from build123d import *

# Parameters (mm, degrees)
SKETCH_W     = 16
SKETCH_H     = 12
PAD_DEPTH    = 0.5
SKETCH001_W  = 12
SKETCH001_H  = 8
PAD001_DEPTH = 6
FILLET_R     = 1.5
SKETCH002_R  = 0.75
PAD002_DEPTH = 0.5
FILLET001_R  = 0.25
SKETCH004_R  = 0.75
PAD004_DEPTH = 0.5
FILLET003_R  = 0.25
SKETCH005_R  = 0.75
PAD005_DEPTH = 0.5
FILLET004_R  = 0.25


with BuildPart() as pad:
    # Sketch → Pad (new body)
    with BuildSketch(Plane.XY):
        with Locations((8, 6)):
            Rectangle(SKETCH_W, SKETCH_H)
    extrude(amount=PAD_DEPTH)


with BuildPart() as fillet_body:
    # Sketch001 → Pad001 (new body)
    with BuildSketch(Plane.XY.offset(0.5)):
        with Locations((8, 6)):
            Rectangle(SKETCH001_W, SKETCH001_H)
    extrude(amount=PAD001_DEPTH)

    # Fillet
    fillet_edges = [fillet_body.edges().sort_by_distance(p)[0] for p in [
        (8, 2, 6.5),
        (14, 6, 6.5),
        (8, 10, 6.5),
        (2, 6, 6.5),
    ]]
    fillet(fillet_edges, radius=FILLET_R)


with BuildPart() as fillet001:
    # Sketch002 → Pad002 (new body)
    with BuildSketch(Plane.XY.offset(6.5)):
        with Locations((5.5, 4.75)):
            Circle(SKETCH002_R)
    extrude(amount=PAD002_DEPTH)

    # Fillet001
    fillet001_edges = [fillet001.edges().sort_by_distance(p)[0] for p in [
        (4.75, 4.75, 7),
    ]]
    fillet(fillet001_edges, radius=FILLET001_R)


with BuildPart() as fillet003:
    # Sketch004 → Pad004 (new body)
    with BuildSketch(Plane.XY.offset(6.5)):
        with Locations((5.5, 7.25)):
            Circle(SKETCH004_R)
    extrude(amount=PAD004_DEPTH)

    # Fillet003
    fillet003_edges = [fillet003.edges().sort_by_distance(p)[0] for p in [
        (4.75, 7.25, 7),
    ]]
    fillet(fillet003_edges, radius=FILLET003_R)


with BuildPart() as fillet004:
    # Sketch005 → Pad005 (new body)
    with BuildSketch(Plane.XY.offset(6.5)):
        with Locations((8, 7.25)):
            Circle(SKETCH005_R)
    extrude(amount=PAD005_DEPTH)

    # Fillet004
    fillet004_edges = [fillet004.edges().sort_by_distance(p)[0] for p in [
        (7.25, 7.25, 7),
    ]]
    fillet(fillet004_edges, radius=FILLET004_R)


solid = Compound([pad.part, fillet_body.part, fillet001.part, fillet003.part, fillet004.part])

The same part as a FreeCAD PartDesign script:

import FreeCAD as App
import Part
import Sketcher
from FreeCAD import Vector


def edges_at(feature, points):
    """Names of the edges that pass closest to the given points."""
    edges = feature.Shape.Edges
    near = lambda p: min(range(len(edges)), key=lambda i: edges[i].distToShape(Part.Vertex(*p))[0])
    return sorted({f"Edge{near(p) + 1}" for p in points})

doc = App.newDocument("Part")
body = doc.addObject("PartDesign::Body", "Body")

sketch1 = body.newObject("Sketcher::SketchObject", "Sketch")
sketch1.AttachmentSupport = (doc.getObject("XY_Plane"), [""])
sketch1.MapMode = "FlatFace"
sketch1.addGeometry([
    Part.LineSegment(Vector(0, 12, 0), Vector(0, 0, 0)),
    Part.LineSegment(Vector(0, 0, 0), Vector(16, 0, 0)),
    Part.LineSegment(Vector(16, 0, 0), Vector(16, 12, 0)),
    Part.LineSegment(Vector(16, 12, 0), Vector(0, 12, 0)),
], False)
sketch1.addConstraint([
    Sketcher.Constraint("Coincident", 0, 2, 1, 1),
    Sketcher.Constraint("Coincident", 1, 2, 2, 1),
    Sketcher.Constraint("Coincident", 2, 2, 3, 1),
    Sketcher.Constraint("Coincident", 3, 2, 0, 1),
    Sketcher.Constraint("Vertical", 0),
    Sketcher.Constraint("Horizontal", 1),
    Sketcher.Constraint("Vertical", 2),
    Sketcher.Constraint("Horizontal", 3),
    Sketcher.Constraint("Coincident", 0, 2, -1, 1),
    Sketcher.Constraint("DistanceX", 1, 1, 1, 2, 16.0),
    Sketcher.Constraint("DistanceY", 0, 2, 0, 1, 12.0),
])
pad1 = body.newObject("PartDesign::Pad", "Pad")
pad1.Profile = sketch1
pad1.Length = 0.5
body2 = doc.addObject("PartDesign::Body", "Body001")

sketch2 = body2.newObject("Sketcher::SketchObject", "Sketch001")
sketch2.AttachmentSupport = (doc.getObject("XY_Plane001"), [""])
sketch2.MapMode = "FlatFace"
sketch2.AttachmentOffset = App.Placement(Vector(0, 0, 0.5), App.Rotation())
sketch2.addGeometry([
    Part.LineSegment(Vector(2, 10, 0), Vector(2, 2, 0)),
    Part.LineSegment(Vector(2, 2, 0), Vector(14, 2, 0)),
    Part.LineSegment(Vector(14, 2, 0), Vector(14, 10, 0)),
    Part.LineSegment(Vector(14, 10, 0), Vector(2, 10, 0)),
], False)
sketch2.addConstraint([
    Sketcher.Constraint("Coincident", 0, 2, 1, 1),
    Sketcher.Constraint("Coincident", 1, 2, 2, 1),
    Sketcher.Constraint("Coincident", 2, 2, 3, 1),
    Sketcher.Constraint("Coincident", 3, 2, 0, 1),
    Sketcher.Constraint("Vertical", 0),
    Sketcher.Constraint("Horizontal", 1),
    Sketcher.Constraint("Vertical", 2),
    Sketcher.Constraint("Horizontal", 3),
    Sketcher.Constraint("DistanceX", 1, 1, 1, 2, 12.0),
    Sketcher.Constraint("DistanceY", 0, 2, 0, 1, 8.0),
    Sketcher.Constraint("DistanceX", -1, 1, 0, 2, 2.0),
    Sketcher.Constraint("DistanceY", -1, 1, 0, 2, 2.0),
])
pad2 = body2.newObject("PartDesign::Pad", "Pad001")
pad2.Profile = sketch2
pad2.Length = 6
doc.recompute()

fillet = body2.newObject("PartDesign::Fillet", "Fillet")
fillet.Base = (pad2, edges_at(pad2, [
    (8, 2, 6.5),
    (14, 6, 6.5),
    (8, 10, 6.5),
    (2, 6, 6.5),
]))
fillet.Radius = 1.5
body3 = doc.addObject("PartDesign::Body", "Body002")

sketch3 = body3.newObject("Sketcher::SketchObject", "Sketch002")
sketch3.AttachmentSupport = (doc.getObject("XY_Plane002"), [""])
sketch3.MapMode = "FlatFace"
sketch3.AttachmentOffset = App.Placement(Vector(0, 0, 6.5), App.Rotation())
sketch3.addGeometry(Part.Circle(Vector(5.5, 4.8, 0), Vector(0, 0, 1), 0.8), False)
sketch3.addConstraint([
    Sketcher.Constraint("Diameter", 0, 1.5),
    Sketcher.Constraint("DistanceX", -1, 1, 0, 3, 5.5),
    Sketcher.Constraint("DistanceY", -1, 1, 0, 3, 4.75),
])
pad3 = body3.newObject("PartDesign::Pad", "Pad002")
pad3.Profile = sketch3
pad3.Length = 0.5
doc.recompute()

fillet2 = body3.newObject("PartDesign::Fillet", "Fillet001")
fillet2.Base = (pad3, edges_at(pad3, [(4.75, 4.75, 7)]))
fillet2.Radius = 0.25
body4 = doc.addObject("PartDesign::Body", "Body003")

sketch4 = body4.newObject("Sketcher::SketchObject", "Sketch003")
sketch4.AttachmentSupport = (doc.getObject("XY_Plane003"), [""])
sketch4.MapMode = "FlatFace"
sketch4.AttachmentOffset = App.Placement(Vector(0, 0, 6.5), App.Rotation())
sketch4.addGeometry(Part.Circle(Vector(5.5, 7.2, 0), Vector(0, 0, 1), 0.8), False)
sketch4.addConstraint([
    Sketcher.Constraint("Diameter", 0, 1.5),
    Sketcher.Constraint("DistanceX", -1, 1, 0, 3, 5.5),
    Sketcher.Constraint("DistanceY", -1, 1, 0, 3, 7.25),
])
pad4 = body4.newObject("PartDesign::Pad", "Pad003")
pad4.Profile = sketch4
pad4.Length = 0.5
doc.recompute()

fillet3 = body4.newObject("PartDesign::Fillet", "Fillet002")
fillet3.Base = (pad4, edges_at(pad4, [(4.75, 7.25, 7)]))
fillet3.Radius = 0.25
body5 = doc.addObject("PartDesign::Body", "Body004")

sketch5 = body5.newObject("Sketcher::SketchObject", "Sketch004")
sketch5.AttachmentSupport = (doc.getObject("XY_Plane004"), [""])
sketch5.MapMode = "FlatFace"
sketch5.AttachmentOffset = App.Placement(Vector(0, 0, 6.5), App.Rotation())
sketch5.addGeometry(Part.Circle(Vector(8, 7.2, 0), Vector(0, 0, 1), 0.8), False)
sketch5.addConstraint([
    Sketcher.Constraint("Diameter", 0, 1.5),
    Sketcher.Constraint("DistanceX", -1, 1, 0, 3, 8.0),
    Sketcher.Constraint("DistanceY", -1, 1, 0, 3, 7.25),
])
pad5 = body5.newObject("PartDesign::Pad", "Pad004")
pad5.Profile = sketch5
pad5.Length = 0.5
doc.recompute()

fillet4 = body5.newObject("PartDesign::Fillet", "Fillet003")
fillet4.Base = (pad5, edges_at(pad5, [(7.25, 7.25, 7)]))
fillet4.Radius = 0.25

doc.recompute()
